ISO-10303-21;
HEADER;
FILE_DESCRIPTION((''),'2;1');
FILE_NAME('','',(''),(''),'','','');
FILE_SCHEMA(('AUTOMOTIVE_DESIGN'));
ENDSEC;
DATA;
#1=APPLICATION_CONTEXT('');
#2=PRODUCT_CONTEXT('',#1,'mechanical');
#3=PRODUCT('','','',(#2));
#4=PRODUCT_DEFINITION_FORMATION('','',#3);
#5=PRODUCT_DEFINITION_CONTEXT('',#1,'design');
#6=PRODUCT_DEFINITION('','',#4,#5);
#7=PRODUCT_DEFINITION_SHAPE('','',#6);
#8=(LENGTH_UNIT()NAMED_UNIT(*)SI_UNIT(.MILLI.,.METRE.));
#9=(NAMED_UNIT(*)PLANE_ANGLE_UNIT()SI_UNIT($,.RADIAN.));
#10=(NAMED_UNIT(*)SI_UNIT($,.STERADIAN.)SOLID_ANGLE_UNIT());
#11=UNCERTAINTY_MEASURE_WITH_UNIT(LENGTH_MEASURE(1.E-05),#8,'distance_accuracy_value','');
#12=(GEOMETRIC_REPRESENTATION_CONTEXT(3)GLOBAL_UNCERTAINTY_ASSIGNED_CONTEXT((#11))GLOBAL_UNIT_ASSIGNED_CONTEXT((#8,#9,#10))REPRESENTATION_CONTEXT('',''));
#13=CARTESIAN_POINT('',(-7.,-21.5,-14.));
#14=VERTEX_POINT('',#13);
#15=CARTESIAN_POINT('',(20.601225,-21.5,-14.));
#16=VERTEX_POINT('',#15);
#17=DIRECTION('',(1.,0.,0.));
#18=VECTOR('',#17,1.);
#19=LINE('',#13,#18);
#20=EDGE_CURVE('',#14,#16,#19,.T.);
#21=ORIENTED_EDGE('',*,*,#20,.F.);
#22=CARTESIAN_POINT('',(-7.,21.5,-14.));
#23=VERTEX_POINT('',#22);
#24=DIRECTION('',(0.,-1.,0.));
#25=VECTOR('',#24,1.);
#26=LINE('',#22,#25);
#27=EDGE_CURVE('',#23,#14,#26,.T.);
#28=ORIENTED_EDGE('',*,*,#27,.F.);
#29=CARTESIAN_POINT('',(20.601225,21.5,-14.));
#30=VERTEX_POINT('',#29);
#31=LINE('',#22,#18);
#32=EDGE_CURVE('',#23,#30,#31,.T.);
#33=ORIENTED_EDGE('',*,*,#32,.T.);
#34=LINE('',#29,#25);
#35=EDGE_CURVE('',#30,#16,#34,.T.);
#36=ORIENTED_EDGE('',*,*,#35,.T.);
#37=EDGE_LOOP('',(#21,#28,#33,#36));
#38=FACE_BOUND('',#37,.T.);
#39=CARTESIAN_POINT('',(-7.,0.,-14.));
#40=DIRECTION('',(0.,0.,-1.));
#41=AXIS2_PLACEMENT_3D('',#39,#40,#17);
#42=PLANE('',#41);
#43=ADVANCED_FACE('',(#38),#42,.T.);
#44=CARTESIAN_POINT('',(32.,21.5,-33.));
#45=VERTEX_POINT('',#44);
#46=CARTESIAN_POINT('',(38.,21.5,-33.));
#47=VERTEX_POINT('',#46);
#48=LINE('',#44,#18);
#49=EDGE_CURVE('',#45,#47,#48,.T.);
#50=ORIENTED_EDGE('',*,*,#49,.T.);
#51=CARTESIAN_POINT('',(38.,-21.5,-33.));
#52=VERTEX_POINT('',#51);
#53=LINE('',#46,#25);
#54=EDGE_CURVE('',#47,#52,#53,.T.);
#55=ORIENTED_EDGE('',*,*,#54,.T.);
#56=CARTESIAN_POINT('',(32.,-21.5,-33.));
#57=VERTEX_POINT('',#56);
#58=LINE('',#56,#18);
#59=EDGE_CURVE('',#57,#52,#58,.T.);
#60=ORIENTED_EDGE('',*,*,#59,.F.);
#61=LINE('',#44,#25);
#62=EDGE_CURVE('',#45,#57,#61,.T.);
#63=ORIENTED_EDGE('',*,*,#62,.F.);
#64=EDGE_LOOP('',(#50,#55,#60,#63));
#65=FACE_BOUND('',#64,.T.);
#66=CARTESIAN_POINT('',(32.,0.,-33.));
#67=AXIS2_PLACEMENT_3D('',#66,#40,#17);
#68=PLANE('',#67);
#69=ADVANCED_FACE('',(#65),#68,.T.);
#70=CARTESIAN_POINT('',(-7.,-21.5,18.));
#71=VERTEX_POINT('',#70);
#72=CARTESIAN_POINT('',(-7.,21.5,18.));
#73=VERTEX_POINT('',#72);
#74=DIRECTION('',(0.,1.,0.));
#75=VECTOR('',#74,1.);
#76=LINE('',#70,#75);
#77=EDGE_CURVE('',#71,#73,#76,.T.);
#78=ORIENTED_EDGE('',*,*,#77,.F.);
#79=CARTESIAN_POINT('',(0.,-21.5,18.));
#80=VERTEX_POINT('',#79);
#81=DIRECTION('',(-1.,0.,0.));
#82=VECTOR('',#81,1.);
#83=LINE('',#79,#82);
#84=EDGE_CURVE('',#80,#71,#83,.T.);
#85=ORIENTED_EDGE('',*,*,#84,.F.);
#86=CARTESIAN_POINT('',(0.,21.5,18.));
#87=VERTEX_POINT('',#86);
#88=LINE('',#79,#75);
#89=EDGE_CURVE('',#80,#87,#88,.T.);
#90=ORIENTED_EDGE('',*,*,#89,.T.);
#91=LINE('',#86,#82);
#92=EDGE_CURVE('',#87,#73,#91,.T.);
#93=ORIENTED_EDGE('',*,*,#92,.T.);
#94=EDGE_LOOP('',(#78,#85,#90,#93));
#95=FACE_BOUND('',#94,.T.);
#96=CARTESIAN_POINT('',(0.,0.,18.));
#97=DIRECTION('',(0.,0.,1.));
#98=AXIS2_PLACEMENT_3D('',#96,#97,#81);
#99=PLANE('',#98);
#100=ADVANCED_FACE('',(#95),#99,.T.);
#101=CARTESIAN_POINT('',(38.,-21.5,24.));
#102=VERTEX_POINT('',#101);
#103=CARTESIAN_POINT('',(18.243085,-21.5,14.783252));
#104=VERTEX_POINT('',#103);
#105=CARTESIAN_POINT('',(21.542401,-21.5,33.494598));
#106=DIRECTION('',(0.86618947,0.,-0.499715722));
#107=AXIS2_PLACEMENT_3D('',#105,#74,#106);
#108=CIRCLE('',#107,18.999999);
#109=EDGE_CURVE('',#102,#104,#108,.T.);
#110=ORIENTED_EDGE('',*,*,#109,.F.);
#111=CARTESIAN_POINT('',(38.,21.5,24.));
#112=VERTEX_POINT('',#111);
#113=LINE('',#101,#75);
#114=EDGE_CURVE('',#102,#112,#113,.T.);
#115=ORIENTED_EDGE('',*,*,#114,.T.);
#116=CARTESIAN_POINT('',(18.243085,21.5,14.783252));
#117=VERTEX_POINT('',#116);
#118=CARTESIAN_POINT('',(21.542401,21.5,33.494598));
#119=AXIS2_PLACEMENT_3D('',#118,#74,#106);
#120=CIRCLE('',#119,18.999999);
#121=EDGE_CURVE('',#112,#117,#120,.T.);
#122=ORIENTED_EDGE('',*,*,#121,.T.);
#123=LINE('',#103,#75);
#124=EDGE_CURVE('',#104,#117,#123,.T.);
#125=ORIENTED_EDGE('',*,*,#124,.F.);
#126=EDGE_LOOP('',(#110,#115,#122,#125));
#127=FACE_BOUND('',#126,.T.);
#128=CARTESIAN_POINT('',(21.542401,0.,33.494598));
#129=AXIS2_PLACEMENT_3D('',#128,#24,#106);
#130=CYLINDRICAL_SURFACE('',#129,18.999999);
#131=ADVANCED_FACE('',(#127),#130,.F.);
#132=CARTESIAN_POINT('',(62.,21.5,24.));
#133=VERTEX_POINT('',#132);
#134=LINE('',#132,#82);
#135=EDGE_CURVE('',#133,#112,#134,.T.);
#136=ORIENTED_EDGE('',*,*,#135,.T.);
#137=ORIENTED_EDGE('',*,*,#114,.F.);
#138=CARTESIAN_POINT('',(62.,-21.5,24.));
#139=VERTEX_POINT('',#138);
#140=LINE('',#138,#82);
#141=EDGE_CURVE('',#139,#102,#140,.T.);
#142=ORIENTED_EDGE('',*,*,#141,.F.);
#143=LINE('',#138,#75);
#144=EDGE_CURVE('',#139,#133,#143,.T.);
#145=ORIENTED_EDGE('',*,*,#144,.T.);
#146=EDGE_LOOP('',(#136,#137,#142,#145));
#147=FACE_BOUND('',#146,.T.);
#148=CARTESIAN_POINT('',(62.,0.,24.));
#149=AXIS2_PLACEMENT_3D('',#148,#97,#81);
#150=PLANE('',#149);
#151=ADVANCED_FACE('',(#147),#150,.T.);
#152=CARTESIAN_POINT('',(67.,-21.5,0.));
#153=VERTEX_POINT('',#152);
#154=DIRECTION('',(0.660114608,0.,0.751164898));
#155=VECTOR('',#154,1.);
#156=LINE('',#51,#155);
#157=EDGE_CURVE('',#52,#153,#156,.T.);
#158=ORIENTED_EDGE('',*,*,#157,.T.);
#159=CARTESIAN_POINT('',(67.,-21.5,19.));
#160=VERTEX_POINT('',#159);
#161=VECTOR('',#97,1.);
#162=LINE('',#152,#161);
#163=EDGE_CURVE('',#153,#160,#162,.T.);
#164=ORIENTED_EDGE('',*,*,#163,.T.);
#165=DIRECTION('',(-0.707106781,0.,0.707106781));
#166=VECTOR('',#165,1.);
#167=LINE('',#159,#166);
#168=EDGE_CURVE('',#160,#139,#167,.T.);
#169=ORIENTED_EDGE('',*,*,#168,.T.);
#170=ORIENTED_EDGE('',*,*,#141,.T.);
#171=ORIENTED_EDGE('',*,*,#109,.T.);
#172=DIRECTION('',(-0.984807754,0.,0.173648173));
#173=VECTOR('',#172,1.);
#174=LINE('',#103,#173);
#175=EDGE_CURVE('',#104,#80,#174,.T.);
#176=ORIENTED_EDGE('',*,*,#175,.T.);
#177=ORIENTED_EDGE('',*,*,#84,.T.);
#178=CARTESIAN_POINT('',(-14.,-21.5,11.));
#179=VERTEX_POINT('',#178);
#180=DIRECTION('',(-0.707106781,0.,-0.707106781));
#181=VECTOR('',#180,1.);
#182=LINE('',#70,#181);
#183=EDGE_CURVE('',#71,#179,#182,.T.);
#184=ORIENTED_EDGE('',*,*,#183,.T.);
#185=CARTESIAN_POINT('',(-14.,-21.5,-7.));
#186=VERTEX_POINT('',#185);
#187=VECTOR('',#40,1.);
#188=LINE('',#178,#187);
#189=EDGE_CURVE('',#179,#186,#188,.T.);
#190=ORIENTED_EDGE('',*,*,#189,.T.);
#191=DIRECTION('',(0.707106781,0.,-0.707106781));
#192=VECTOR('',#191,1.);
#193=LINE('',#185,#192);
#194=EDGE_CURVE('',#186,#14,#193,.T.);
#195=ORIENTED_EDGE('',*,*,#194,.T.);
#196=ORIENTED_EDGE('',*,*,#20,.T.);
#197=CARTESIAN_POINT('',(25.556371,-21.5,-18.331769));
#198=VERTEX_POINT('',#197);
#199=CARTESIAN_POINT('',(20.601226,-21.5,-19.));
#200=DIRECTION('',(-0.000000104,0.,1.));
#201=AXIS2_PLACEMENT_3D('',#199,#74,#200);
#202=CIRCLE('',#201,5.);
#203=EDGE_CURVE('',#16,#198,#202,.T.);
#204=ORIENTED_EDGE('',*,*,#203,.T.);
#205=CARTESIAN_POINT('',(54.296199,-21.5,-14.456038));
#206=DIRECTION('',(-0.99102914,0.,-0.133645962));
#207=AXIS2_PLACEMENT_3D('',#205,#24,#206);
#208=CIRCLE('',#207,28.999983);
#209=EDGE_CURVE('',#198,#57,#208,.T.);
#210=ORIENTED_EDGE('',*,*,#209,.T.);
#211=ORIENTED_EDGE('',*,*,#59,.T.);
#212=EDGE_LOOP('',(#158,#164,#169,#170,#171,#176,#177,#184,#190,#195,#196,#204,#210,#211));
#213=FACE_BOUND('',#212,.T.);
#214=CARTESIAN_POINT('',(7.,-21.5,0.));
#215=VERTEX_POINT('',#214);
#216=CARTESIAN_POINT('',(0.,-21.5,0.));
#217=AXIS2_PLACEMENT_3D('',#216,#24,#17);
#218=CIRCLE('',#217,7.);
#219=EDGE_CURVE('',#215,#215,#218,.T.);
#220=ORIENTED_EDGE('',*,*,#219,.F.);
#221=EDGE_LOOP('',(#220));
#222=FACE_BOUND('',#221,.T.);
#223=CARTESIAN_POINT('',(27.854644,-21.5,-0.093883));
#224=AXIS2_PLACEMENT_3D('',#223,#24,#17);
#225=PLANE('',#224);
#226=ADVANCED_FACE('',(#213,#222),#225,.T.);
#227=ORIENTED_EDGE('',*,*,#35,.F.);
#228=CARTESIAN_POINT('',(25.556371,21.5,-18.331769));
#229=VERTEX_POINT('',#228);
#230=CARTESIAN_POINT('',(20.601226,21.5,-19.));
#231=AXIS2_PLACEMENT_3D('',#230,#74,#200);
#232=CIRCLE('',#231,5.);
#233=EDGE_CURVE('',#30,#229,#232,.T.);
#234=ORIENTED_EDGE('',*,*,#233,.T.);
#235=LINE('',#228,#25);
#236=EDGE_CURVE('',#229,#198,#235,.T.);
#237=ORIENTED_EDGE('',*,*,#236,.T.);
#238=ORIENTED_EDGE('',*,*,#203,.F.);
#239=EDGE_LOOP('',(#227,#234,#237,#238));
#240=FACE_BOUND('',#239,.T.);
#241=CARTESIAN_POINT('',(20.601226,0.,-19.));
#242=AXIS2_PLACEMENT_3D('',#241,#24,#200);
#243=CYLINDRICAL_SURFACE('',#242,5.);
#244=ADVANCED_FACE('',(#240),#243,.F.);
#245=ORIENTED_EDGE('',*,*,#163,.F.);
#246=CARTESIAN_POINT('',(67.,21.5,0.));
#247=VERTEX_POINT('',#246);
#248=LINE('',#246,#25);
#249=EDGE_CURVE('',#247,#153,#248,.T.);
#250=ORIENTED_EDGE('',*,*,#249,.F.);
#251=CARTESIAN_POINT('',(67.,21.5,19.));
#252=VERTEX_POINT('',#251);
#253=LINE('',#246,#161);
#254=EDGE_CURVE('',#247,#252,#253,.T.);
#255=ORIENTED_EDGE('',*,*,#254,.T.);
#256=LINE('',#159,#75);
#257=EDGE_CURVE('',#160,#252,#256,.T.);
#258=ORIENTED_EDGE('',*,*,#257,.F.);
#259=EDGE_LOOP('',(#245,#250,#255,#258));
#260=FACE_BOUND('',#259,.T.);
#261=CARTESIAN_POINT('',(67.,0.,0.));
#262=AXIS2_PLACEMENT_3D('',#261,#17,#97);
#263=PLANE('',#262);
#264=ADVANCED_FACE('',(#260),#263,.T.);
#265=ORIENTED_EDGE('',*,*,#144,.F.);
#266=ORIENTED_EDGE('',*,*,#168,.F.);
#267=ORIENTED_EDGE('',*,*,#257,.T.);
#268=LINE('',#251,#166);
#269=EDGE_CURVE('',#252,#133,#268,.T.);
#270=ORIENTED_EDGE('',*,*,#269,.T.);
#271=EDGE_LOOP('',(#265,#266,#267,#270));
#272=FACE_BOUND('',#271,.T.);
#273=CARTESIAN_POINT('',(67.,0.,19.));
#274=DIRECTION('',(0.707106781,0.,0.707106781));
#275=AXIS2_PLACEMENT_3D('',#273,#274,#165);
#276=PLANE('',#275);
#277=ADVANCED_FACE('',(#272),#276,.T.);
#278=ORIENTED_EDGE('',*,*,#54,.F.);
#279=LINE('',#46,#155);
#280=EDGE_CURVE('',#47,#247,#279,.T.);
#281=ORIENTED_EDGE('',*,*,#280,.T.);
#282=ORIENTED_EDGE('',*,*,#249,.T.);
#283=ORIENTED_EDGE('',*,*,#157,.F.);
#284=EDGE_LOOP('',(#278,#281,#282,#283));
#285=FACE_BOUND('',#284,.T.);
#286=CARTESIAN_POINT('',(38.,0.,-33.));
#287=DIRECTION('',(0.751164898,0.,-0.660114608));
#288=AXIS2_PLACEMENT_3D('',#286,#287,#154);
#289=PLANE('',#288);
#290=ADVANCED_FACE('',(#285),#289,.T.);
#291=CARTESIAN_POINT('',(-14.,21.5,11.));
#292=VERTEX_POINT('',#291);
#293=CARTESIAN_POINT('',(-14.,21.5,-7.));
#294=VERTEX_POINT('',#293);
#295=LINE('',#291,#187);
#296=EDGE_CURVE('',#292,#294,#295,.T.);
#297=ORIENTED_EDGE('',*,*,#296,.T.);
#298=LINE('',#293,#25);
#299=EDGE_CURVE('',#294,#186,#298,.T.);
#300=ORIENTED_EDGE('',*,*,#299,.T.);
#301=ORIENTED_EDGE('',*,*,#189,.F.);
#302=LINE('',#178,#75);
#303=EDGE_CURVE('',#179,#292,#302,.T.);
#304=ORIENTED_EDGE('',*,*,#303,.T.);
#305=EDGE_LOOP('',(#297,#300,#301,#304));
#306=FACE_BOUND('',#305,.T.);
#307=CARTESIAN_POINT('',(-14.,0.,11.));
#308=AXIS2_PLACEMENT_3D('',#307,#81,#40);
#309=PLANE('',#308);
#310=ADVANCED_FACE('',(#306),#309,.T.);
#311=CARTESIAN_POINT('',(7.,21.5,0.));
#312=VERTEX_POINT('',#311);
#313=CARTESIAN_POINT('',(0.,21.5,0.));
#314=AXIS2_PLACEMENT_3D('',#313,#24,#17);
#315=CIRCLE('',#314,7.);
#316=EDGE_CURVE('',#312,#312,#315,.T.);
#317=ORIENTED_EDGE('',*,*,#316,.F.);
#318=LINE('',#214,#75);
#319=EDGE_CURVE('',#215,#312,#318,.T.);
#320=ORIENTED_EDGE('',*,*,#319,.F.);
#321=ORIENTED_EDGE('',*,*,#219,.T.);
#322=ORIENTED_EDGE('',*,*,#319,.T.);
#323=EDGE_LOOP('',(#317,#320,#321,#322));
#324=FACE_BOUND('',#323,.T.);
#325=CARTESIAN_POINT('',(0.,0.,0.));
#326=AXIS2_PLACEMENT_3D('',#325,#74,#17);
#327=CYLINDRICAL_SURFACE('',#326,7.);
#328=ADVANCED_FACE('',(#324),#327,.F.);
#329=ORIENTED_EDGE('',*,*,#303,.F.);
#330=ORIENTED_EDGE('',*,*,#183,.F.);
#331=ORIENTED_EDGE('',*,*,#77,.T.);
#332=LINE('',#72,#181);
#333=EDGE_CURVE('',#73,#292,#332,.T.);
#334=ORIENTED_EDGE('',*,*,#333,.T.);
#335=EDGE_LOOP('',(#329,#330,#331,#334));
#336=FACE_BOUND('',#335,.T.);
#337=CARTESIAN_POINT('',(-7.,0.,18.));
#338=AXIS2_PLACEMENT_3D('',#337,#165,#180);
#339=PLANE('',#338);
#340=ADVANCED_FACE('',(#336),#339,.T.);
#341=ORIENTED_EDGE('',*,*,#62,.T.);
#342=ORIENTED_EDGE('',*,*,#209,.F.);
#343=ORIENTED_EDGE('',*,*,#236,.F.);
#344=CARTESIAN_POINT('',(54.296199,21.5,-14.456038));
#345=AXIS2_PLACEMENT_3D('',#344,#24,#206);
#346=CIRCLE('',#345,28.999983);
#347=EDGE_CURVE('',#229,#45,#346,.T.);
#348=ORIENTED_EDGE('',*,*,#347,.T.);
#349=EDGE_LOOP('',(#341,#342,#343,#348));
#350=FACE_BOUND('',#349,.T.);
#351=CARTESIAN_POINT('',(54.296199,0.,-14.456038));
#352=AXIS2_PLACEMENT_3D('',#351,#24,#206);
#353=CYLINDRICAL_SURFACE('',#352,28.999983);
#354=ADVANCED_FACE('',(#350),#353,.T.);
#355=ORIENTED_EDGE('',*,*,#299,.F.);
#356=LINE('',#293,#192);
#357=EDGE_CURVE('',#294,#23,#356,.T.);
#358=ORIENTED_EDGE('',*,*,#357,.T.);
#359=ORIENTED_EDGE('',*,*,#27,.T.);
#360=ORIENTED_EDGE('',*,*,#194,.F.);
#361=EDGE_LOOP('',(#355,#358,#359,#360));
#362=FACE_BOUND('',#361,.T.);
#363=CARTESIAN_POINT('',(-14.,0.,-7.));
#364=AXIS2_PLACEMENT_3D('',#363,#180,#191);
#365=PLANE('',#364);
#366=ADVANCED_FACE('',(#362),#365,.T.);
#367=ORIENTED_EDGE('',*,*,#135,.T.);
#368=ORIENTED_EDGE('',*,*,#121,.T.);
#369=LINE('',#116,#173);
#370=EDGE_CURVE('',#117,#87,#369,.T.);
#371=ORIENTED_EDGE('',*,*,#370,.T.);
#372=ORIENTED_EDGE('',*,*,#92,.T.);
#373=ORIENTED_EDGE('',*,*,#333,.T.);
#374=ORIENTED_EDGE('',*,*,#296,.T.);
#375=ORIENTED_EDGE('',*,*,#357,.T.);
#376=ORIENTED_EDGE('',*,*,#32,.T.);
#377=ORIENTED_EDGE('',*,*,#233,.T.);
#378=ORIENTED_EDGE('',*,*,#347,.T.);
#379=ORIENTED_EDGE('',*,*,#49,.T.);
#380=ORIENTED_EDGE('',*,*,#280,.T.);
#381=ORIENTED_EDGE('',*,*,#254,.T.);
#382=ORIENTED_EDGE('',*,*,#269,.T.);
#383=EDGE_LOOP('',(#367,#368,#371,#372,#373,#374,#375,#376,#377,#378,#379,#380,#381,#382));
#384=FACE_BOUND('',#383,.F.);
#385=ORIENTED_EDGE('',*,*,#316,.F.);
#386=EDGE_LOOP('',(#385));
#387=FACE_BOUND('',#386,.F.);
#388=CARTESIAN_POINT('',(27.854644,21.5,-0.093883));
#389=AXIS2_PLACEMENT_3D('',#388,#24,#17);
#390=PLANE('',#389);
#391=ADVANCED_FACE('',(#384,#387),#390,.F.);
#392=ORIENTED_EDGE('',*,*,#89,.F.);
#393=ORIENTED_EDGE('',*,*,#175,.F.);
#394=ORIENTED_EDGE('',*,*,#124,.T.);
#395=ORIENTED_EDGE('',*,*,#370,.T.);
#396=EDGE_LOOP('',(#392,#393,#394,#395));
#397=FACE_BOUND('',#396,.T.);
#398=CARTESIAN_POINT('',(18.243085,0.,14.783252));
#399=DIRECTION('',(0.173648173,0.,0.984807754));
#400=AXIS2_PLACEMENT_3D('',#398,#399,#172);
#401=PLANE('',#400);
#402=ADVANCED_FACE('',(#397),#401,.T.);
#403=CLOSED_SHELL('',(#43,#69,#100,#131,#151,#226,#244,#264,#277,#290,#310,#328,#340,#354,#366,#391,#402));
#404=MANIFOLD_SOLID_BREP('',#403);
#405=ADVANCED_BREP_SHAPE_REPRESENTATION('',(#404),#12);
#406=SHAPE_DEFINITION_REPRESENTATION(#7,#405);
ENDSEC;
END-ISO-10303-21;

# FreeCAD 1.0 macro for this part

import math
import FreeCAD as App
import Part
import Sketcher

V = App.Vector
Q = App.Units.Quantity

doc = App.newDocument("Part")
body = doc.addObject("PartDesign::Body", "Body")

sketch1 = doc.addObject("Sketcher::SketchObject", "Sketch")
body.addObject(sketch1)
sketch1.AttachmentSupport = (doc.XZ_Plane, [""])
sketch1.MapMode = "FlatFace"
sketch1.addGeometry(Part.LineSegment(V(-14, 11, 0), V(-14, -7, 0)), False)
sketch1.addGeometry(Part.LineSegment(V(-14, -7, 0), V(-7, -14, 0)), False)
sketch1.addGeometry(Part.LineSegment(V(-7, -14, 0), V(20.601225, -14, 0)), False)
sketch1.addGeometry(Part.ArcOfCircle(Part.Circle(V(20.601226, -19, 0), V(0, 0, 1), 5), math.radians(7.680343), math.radians(90.000006)), False)
sketch1.addGeometry(Part.ArcOfCircle(Part.Circle(V(54.296199, -14.456038, 0), V(0, 0, 1), 28.999983), math.radians(-172.31967), math.radians(-140.249379)), False)
sketch1.addGeometry(Part.LineSegment(V(32, -33, 0), V(38, -33, 0)), False)
sketch1.addGeometry(Part.LineSegment(V(38, -33, 0), V(67, 0, 0)), False)
sketch1.addGeometry(Part.LineSegment(V(67, 0, 0), V(67, 19, 0)), False)
sketch1.addGeometry(Part.LineSegment(V(67, 19, 0), V(62, 24, 0)), False)
sketch1.addGeometry(Part.LineSegment(V(62, 24, 0), V(38, 24, 0)), False)
sketch1.addGeometry(Part.ArcOfCircle(Part.Circle(V(21.542401, 33.494598, 0), V(0, 0, 1), 18.999999), math.radians(-100.000002), math.radians(-29.981194)), False)
sketch1.addGeometry(Part.LineSegment(V(18.243085, 14.783252, 0), V(0, 18, 0)), False)
sketch1.addGeometry(Part.LineSegment(V(0, 18, 0), V(-7, 18, 0)), False)
sketch1.addGeometry(Part.LineSegment(V(-7, 18, 0), V(-14, 11, 0)), False)
sketch1.addGeometry(Part.Circle(V(0, 0, 0), V(0, 0, 1), 7), False)
sketch1.addConstraint(Sketcher.Constraint("Coincident", 0, 2, 1, 1))
sketch1.addConstraint(Sketcher.Constraint("Coincident", 1, 2, 2, 1))
sketch1.addConstraint(Sketcher.Constraint("Tangent", 2, 2, 3, 2))
sketch1.addConstraint(Sketcher.Constraint("Tangent", 3, 1, 4, 1))
sketch1.addConstraint(Sketcher.Constraint("Coincident", 4, 2, 5, 1))
sketch1.addConstraint(Sketcher.Constraint("Coincident", 5, 2, 6, 1))
sketch1.addConstraint(Sketcher.Constraint("Coincident", 6, 2, 7, 1))
sketch1.addConstraint(Sketcher.Constraint("Coincident", 7, 2, 8, 1))
sketch1.addConstraint(Sketcher.Constraint("Coincident", 8, 2, 9, 1))
sketch1.addConstraint(Sketcher.Constraint("Coincident", 9, 2, 10, 2))
sketch1.addConstraint(Sketcher.Constraint("Tangent", 10, 1, 11, 1))
sketch1.addConstraint(Sketcher.Constraint("Coincident", 11, 2, 12, 1))
sketch1.addConstraint(Sketcher.Constraint("Coincident", 12, 2, 13, 1))
sketch1.addConstraint(Sketcher.Constraint("Coincident", 13, 2, 0, 1))
sketch1.addConstraint(Sketcher.Constraint("Vertical", 0))
sketch1.addConstraint(Sketcher.Constraint("Horizontal", 2))
sketch1.addConstraint(Sketcher.Constraint("Horizontal", 5))
sketch1.addConstraint(Sketcher.Constraint("Vertical", 7))
sketch1.addConstraint(Sketcher.Constraint("Horizontal", 9))
sketch1.addConstraint(Sketcher.Constraint("Horizontal", 12))
sketch1.addConstraint(Sketcher.Constraint("Coincident", 14, 3, -1, 1))
sketch1.addConstraint(Sketcher.Constraint("PointOnObject", 6, 2, -1))
sketch1.addConstraint(Sketcher.Constraint("PointOnObject", 11, 2, -2))
sketch1.addConstraint(Sketcher.Constraint("Parallel", 1, 8))
sketch1.addConstraint(Sketcher.Constraint("Perpendicular", 8, 13))
sketch1.addConstraint(Sketcher.Constraint("Vertical", 5, 2, 9, 2))
sketch1.addConstraint(Sketcher.Constraint("Vertical", 1, 2, 12, 2))
sketch1.addConstraint(Sketcher.Constraint("Equal", 1, 13))
sketch1.addConstraint(Sketcher.Constraint("Diameter", 14, 14.0))
sketch1.addConstraint(Sketcher.Constraint("Radius", 3, 5.0))
sketch1.addConstraint(Sketcher.Constraint("Radius", 10, 18.999999))
sketch1.addConstraint(Sketcher.Constraint("DistanceX", 5, 1, 5, 2, 6.0))
sketch1.addConstraint(Sketcher.Constraint("DistanceX", 9, 2, 9, 1, 24.0))
sketch1.addConstraint(Sketcher.Constraint("DistanceX", 12, 2, 12, 1, 7.0))
sketch1.addConstraint(Sketcher.Constraint("DistanceY", 0, 2, 0, 1, 18.0))
sketch1.addConstraint(Sketcher.Constraint("DistanceY", 7, 1, 7, 2, 19.0))
sketch1.addConstraint(Sketcher.Constraint("Angle", 11, Q("170 deg")))
sketch1.addConstraint(Sketcher.Constraint("DistanceY", 3, 3, -1, 1, 19.0))
sketch1.addConstraint(Sketcher.Constraint("DistanceX", 0, 2, -1, 1, 14.0))
sketch1.addConstraint(Sketcher.Constraint("DistanceX", -1, 1, 4, 2, 32.0))
sketch1.addConstraint(Sketcher.Constraint("DistanceY", 4, 2, -1, 1, 33.0))
sketch1.addConstraint(Sketcher.Constraint("DistanceX", -1, 1, 6, 2, 67.0))
sketch1.addConstraint(Sketcher.Constraint("Radius", 4, 28.999983))
sketch1.addConstraint(Sketcher.Constraint("DistanceX", -1, 1, 4, 3, 54.296199))
pad1 = doc.addObject("PartDesign::Pad", "Pad")
body.addObject(pad1)
pad1.Profile = sketch1
pad1.Length = 43
pad1.Midplane = True

doc.recompute()
